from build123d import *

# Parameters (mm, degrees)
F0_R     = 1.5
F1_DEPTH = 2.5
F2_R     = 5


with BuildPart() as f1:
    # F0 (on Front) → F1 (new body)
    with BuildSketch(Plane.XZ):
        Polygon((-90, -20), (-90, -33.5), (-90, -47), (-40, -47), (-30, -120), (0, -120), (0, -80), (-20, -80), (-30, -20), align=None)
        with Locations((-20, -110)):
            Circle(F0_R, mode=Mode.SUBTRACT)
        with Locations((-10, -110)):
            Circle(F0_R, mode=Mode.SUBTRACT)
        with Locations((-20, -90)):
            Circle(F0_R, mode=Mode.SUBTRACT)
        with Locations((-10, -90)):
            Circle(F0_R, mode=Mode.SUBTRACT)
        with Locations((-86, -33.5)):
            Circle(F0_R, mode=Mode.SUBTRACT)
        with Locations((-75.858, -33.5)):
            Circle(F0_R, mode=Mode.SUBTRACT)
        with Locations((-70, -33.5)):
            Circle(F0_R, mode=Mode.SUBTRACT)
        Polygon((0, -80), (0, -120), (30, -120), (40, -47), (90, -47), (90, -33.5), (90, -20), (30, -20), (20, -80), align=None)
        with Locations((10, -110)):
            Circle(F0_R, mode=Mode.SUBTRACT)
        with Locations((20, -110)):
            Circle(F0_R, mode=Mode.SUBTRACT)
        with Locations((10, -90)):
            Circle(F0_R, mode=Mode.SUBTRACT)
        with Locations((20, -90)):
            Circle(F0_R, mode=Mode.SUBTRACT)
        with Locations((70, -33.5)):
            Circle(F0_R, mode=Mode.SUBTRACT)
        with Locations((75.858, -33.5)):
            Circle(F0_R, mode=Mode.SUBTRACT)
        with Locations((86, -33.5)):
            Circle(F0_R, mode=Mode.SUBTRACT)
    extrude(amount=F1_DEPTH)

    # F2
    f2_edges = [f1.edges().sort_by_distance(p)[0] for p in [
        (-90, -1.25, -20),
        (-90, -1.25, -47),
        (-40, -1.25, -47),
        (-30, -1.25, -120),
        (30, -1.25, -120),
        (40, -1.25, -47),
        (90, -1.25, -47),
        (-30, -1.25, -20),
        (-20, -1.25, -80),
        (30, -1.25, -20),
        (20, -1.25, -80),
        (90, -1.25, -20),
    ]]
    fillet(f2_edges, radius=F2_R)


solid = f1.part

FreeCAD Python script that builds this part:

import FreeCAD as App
import Part
import Sketcher


def edges_at(feature, points):
    """Names of the edges that pass closest to the given points."""
    edges = feature.Shape.Edges
    near = lambda p: min(range(len(edges)), key=lambda i: edges[i].distToShape(Part.Vertex(*p))[0])
    return sorted({f"Edge{near(p) + 1}" for p in points})


def add_polygon(sketch, points):
    """Adds a closed chain of lines whose ends are joined by coincident constraints."""
    first, n = sketch.GeometryCount, len(points)
    for a, b in zip(points, points[1:] + points[:1]):
        sketch.addGeometry(Part.LineSegment(App.Vector(*a, 0), App.Vector(*b, 0)), False)
    for i in range(n):
        sketch.addConstraint(Sketcher.Constraint("Coincident", first + i, 2, first + (i + 1) % n, 1))

doc = App.newDocument("Part")
body = doc.addObject("PartDesign::Body", "Body")

# Sketch on XZ plane
sketch1 = body.newObject("Sketcher::SketchObject", "Sketch")
sketch1.AttachmentSupport = (doc.getObject("XZ_Plane"), [""])
sketch1.MapMode = "FlatFace"
add_polygon(sketch1, [(-90, -20), (-90, -47), (-40, -47), (-30, -120), (30, -120), (40, -47), (90, -47), (90, -20), (30, -20), (20, -80), (-20, -80), (-30, -20)])  # lines 0-11
sketch1.addGeometry(Part.Circle(App.Vector(-20, -110, 0), App.Vector(0, 0, 1), 1.5), False)  # 12
sketch1.addGeometry(Part.Circle(App.Vector(-10, -110, 0), App.Vector(0, 0, 1), 1.5), False)  # 13
sketch1.addGeometry(Part.Circle(App.Vector(-20, -90, 0), App.Vector(0, 0, 1), 1.5), False)  # 14
sketch1.addGeometry(Part.Circle(App.Vector(-10, -90, 0), App.Vector(0, 0, 1), 1.5), False)  # 15
sketch1.addGeometry(Part.Circle(App.Vector(10, -110, 0), App.Vector(0, 0, 1), 1.5), False)  # 16
sketch1.addGeometry(Part.Circle(App.Vector(20, -110, 0), App.Vector(0, 0, 1), 1.5), False)  # 17
sketch1.addGeometry(Part.Circle(App.Vector(10, -90, 0), App.Vector(0, 0, 1), 1.5), False)  # 18
sketch1.addGeometry(Part.Circle(App.Vector(20, -90, 0), App.Vector(0, 0, 1), 1.5), False)  # 19
sketch1.addGeometry(Part.Circle(App.Vector(-86, -33.5, 0), App.Vector(0, 0, 1), 1.5), False)  # 20
sketch1.addGeometry(Part.Circle(App.Vector(-75.9, -33.5, 0), App.Vector(0, 0, 1), 1.5), False)  # 21
sketch1.addGeometry(Part.Circle(App.Vector(-70, -33.5, 0), App.Vector(0, 0, 1), 1.5), False)  # 22
sketch1.addGeometry(Part.Circle(App.Vector(70, -33.5, 0), App.Vector(0, 0, 1), 1.5), False)  # 23
sketch1.addGeometry(Part.Circle(App.Vector(75.9, -33.5, 0), App.Vector(0, 0, 1), 1.5), False)  # 24
sketch1.addGeometry(Part.Circle(App.Vector(86, -33.5, 0), App.Vector(0, 0, 1), 1.5), False)  # 25
sketch1.addConstraint(Sketcher.Constraint("Vertical", 0))
sketch1.addConstraint(Sketcher.Constraint("Horizontal", 1))
sketch1.addConstraint(Sketcher.Constraint("Horizontal", 3))
sketch1.addConstraint(Sketcher.Constraint("Horizontal", 5))
sketch1.addConstraint(Sketcher.Constraint("Vertical", 6))
sketch1.addConstraint(Sketcher.Constraint("Horizontal", 7))
sketch1.addConstraint(Sketcher.Constraint("Horizontal", 9))
sketch1.addConstraint(Sketcher.Constraint("Horizontal", 11))
sketch1.addConstraint(Sketcher.Constraint("Equal", 12, 13))
sketch1.addConstraint(Sketcher.Constraint("Equal", 13, 14))
sketch1.addConstraint(Sketcher.Constraint("Equal", 14, 15))
sketch1.addConstraint(Sketcher.Constraint("Equal", 15, 16))
sketch1.addConstraint(Sketcher.Constraint("Equal", 16, 17))
sketch1.addConstraint(Sketcher.Constraint("Equal", 17, 18))
sketch1.addConstraint(Sketcher.Constraint("Equal", 18, 19))
sketch1.addConstraint(Sketcher.Constraint("Equal", 19, 20))
sketch1.addConstraint(Sketcher.Constraint("Equal", 20, 21))
sketch1.addConstraint(Sketcher.Constraint("Equal", 21, 22))
sketch1.addConstraint(Sketcher.Constraint("Equal", 22, 23))
sketch1.addConstraint(Sketcher.Constraint("Equal", 23, 24))
sketch1.addConstraint(Sketcher.Constraint("Equal", 24, 25))
sketch1.addConstraint(Sketcher.Constraint("Symmetric", 13, 3, 16, 3, -2))
sketch1.addConstraint(Sketcher.Constraint("Symmetric", 12, 3, 17, 3, -2))
sketch1.addConstraint(Sketcher.Constraint("Symmetric", 15, 3, 18, 3, -2))
sketch1.addConstraint(Sketcher.Constraint("Symmetric", 14, 3, 19, 3, -2))
sketch1.addConstraint(Sketcher.Constraint("Symmetric", 22, 3, 23, 3, -2))
sketch1.addConstraint(Sketcher.Constraint("Symmetric", 21, 3, 24, 3, -2))
sketch1.addConstraint(Sketcher.Constraint("Symmetric", 20, 3, 25, 3, -2))
sketch1.addConstraint(Sketcher.Constraint("Symmetric", 1, 2, 4, 2, -2))
sketch1.addConstraint(Sketcher.Constraint("Symmetric", 7, 2, 10, 2, -2))
sketch1.addConstraint(Sketcher.Constraint("Horizontal", 12, 3, 13, 3))
sketch1.addConstraint(Sketcher.Constraint("Horizontal", 14, 3, 15, 3))
sketch1.addConstraint(Sketcher.Constraint("Horizontal", 20, 3, 21, 3))
sketch1.addConstraint(Sketcher.Constraint("Horizontal", 21, 3, 22, 3))
sketch1.addConstraint(Sketcher.Constraint("Vertical", 12, 3, 14, 3))
sketch1.addConstraint(Sketcher.Constraint("Vertical", 13, 3, 15, 3))
sketch1.addConstraint(Sketcher.Constraint("Vertical", 3, 2, 7, 2))
sketch1.addConstraint(Sketcher.Constraint("Vertical", 19, 3, 8, 2))
sketch1.addConstraint(Sketcher.Constraint("Vertical", 14, 3, 9, 2))
sketch1.addConstraint(Sketcher.Constraint("Vertical", 2, 2, 10, 2))
sketch1.addConstraint(Sketcher.Constraint("Equal", 1, 5))
sketch1.addConstraint(Sketcher.Constraint("Equal", 3, 7))
sketch1.addConstraint(Sketcher.Constraint("Diameter", 12, 3.0))
sketch1.addConstraint(Sketcher.Constraint("DistanceX", 1, 1, 1, 2, 50.0))
sketch1.addConstraint(Sketcher.Constraint("DistanceX", 3, 1, 3, 2, 60.0))
sketch1.addConstraint(Sketcher.Constraint("DistanceX", 9, 2, 9, 1, 40.0))
sketch1.addConstraint(Sketcher.Constraint("DistanceY", 0, 2, 0, 1, 27.0))
sketch1.addConstraint(Sketcher.Constraint("DistanceY", 12, 3, -1, 1, 110.0))
sketch1.addConstraint(Sketcher.Constraint("DistanceX", 13, 3, -1, 1, 10.0))
sketch1.addConstraint(Sketcher.Constraint("DistanceY", 14, 3, -1, 1, 90.0))
sketch1.addConstraint(Sketcher.Constraint("DistanceX", 20, 3, -1, 1, 86.0))
sketch1.addConstraint(Sketcher.Constraint("DistanceX", 22, 3, -1, 1, 70.0))
sketch1.addConstraint(Sketcher.Constraint("DistanceY", 0, 2, -1, 1, 47.0))
sketch1.addConstraint(Sketcher.Constraint("DistanceY", 2, 2, -1, 1, 120.0))
sketch1.addConstraint(Sketcher.Constraint("DistanceY", 8, 2, -1, 1, 80.0))
sketch1.addConstraint(Sketcher.Constraint("DistanceY", 20, 3, -1, 1, 33.5))
sketch1.addConstraint(Sketcher.Constraint("DistanceX", 21, 3, -1, 1, 75.858))
pad1 = body.newObject("PartDesign::Pad", "Pad")
pad1.Profile = sketch1
pad1.Length = 2.5
doc.recompute()

fillet = body.newObject("PartDesign::Fillet", "Fillet")
fillet.Base = (pad1, edges_at(pad1, [
    (-90, -1.25, -20),
    (-90, -1.25, -47),
    (-40, -1.25, -47),
    (-30, -1.25, -120),
    (30, -1.25, -120),
    (40, -1.25, -47),
    (90, -1.25, -47),
    (-30, -1.25, -20),
    (-20, -1.25, -80),
    (30, -1.25, -20),
    (20, -1.25, -80),
    (90, -1.25, -20),
]))
fillet.Radius = 5

doc.recompute()
